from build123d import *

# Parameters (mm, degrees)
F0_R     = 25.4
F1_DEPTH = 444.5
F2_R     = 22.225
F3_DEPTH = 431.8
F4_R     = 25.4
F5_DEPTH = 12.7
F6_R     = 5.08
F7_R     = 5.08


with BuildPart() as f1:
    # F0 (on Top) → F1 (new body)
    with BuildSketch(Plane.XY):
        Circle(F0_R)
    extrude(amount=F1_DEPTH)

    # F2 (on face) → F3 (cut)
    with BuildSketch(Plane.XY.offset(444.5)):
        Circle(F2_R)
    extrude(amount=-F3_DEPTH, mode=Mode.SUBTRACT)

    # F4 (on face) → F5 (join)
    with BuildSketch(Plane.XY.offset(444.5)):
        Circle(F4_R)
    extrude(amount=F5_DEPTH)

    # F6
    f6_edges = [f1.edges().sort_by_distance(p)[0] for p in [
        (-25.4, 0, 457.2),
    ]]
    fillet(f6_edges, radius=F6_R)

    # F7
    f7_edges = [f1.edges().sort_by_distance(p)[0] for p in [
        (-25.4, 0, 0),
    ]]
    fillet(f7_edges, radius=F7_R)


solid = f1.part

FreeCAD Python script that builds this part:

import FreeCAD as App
import Part
import Sketcher

V = App.Vector
Q = App.Units.Quantity


def edges_at(feature, points):
    """Names of the edges that pass closest to the given points."""
    edges = feature.Shape.Edges
    near = lambda p: min(range(len(edges)), key=lambda i: edges[i].distToShape(Part.Vertex(*p))[0])
    return sorted({f"Edge{near(p) + 1}" for p in points})

doc = App.newDocument("Part")
body = doc.addObject("PartDesign::Body", "Body")

sketch1 = doc.addObject("Sketcher::SketchObject", "Sketch")
body.addObject(sketch1)
sketch1.AttachmentSupport = (doc.XY_Plane, [""])
sketch1.MapMode = "FlatFace"
sketch1.addGeometry(Part.Circle(V(0, 0, 0), V(0, 0, 1), 25), False)
sketch1.addConstraint([
    Sketcher.Constraint("Coincident", 0, 3, -1, 1),
    Sketcher.Constraint("Diameter", 0, Q("2 in")),
])
pad1 = doc.addObject("PartDesign::Pad", "Pad")
body.addObject(pad1)
pad1.Profile = sketch1
pad1.Length = Q("17.5 in")

sketch2 = doc.addObject("Sketcher::SketchObject", "Sketch001")
body.addObject(sketch2)
sketch2.AttachmentSupport = (doc.XY_Plane, [""])
sketch2.MapMode = "FlatFace"
sketch2.AttachmentOffset = App.Placement(V(0, 0, 17.5 * 25.4), App.Rotation())
sketch2.addGeometry(Part.Circle(V(0, 0, 0), V(0, 0, 1), 22), False)
sketch2.addConstraint([
    Sketcher.Constraint("Coincident", 0, 3, -1, 1),
    Sketcher.Constraint("Diameter", 0, Q("1.75 in")),
])
pocket1 = doc.addObject("PartDesign::Pocket", "Pocket")
body.addObject(pocket1)
pocket1.Profile = sketch2
pocket1.Length = Q("17 in")

sketch3 = doc.addObject("Sketcher::SketchObject", "Sketch002")
body.addObject(sketch3)
sketch3.AttachmentSupport = (doc.XY_Plane, [""])
sketch3.MapMode = "FlatFace"
sketch3.AttachmentOffset = App.Placement(V(0, 0, 17.5 * 25.4), App.Rotation())
sketch3.addGeometry(Part.Circle(V(0, 0, 0), V(0, 0, 1), 25), False)
sketch3.addConstraint([
    Sketcher.Constraint("Coincident", 0, 3, -1, 1),
    Sketcher.Constraint("Diameter", 0, Q("2 in")),
])
pad2 = doc.addObject("PartDesign::Pad", "Pad001")
body.addObject(pad2)
pad2.Profile = sketch3
pad2.Length = Q("0.5 in")
doc.recompute()

fillet = doc.addObject("PartDesign::Fillet", "Fillet")
body.addObject(fillet)
fillet.Base = (pad2, edges_at(pad2, [(-25.4, 0, 457.2)]))
fillet.Radius = Q("0.2 in")
doc.recompute()

fillet2 = doc.addObject("PartDesign::Fillet", "Fillet001")
body.addObject(fillet2)
fillet2.Base = (fillet, edges_at(fillet, [(-25.4, 0, 0)]))
fillet2.Radius = Q("0.2 in")

doc.recompute()
